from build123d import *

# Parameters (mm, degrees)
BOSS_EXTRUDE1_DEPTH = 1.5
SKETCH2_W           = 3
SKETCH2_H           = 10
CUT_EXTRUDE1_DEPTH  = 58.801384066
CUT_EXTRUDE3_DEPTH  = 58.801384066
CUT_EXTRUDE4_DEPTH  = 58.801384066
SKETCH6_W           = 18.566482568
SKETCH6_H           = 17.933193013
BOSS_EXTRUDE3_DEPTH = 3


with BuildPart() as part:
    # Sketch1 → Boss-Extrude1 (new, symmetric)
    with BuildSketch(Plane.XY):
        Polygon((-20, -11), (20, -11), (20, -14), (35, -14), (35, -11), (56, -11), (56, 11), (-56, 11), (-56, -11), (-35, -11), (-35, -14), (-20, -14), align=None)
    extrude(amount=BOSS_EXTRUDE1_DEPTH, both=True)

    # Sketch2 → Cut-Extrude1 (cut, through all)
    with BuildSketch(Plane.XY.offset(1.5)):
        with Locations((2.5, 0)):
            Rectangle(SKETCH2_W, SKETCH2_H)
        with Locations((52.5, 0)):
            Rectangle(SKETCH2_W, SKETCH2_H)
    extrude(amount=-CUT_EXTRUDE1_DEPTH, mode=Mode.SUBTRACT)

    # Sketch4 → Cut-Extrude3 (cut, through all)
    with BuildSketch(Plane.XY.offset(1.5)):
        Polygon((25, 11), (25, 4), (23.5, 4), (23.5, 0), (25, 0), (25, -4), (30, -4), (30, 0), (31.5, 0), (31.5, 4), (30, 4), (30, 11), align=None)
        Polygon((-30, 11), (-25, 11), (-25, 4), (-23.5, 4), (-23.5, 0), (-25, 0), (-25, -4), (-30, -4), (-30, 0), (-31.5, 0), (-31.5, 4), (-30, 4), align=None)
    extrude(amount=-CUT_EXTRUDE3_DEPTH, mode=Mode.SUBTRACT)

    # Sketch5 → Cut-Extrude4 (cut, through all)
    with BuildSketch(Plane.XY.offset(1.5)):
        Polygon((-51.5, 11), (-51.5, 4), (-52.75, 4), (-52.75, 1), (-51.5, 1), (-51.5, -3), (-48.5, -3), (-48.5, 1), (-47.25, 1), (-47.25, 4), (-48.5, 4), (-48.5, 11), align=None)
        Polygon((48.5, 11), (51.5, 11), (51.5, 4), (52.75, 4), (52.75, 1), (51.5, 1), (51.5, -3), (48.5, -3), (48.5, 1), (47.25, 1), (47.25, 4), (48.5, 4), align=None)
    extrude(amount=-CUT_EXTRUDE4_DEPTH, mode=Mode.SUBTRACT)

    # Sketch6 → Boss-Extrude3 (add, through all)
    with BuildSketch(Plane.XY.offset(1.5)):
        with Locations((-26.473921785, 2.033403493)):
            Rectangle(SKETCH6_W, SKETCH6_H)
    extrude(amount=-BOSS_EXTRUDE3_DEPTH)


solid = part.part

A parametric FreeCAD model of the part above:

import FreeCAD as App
import Part
import Sketcher
Q = App.Units.Quantity

doc = App.newDocument("Part")
body = doc.addObject("PartDesign::Body", "Body")

sketch1 = body.newObject("Sketcher::SketchObject", "Sketch")
sketch1.AttachmentSupport = (doc.getObject("XY_Plane"), [""])
sketch1.MapMode = "FlatFace"
sketch1.addGeometry(Part.LineSegment(App.Vector(-20, -11, 0), App.Vector(20, -11, 0)), False)
sketch1.addGeometry(Part.LineSegment(App.Vector(20, -11, 0), App.Vector(20, -14, 0)), False)
sketch1.addGeometry(Part.LineSegment(App.Vector(20, -14, 0), App.Vector(35, -14, 0)), False)
sketch1.addGeometry(Part.LineSegment(App.Vector(35, -14, 0), App.Vector(35, -11, 0)), False)
sketch1.addGeometry(Part.LineSegment(App.Vector(35, -11, 0), App.Vector(56, -11, 0)), False)
sketch1.addGeometry(Part.LineSegment(App.Vector(56, -11, 0), App.Vector(56, 11, 0)), False)
sketch1.addGeometry(Part.LineSegment(App.Vector(56, 11, 0), App.Vector(-56, 11, 0)), False)
sketch1.addGeometry(Part.LineSegment(App.Vector(-56, 11, 0), App.Vector(-56, -11, 0)), False)
sketch1.addGeometry(Part.LineSegment(App.Vector(-56, -11, 0), App.Vector(-35, -11, 0)), False)
sketch1.addGeometry(Part.LineSegment(App.Vector(-35, -11, 0), App.Vector(-35, -14, 0)), False)
sketch1.addGeometry(Part.LineSegment(App.Vector(-35, -14, 0), App.Vector(-20, -14, 0)), False)
sketch1.addGeometry(Part.LineSegment(App.Vector(-20, -14, 0), App.Vector(-20, -11, 0)), False)
sketch1.addConstraint(Sketcher.Constraint("Coincident", 0, 2, 1, 1))
sketch1.addConstraint(Sketcher.Constraint("Coincident", 1, 2, 2, 1))
sketch1.addConstraint(Sketcher.Constraint("Coincident", 2, 2, 3, 1))
sketch1.addConstraint(Sketcher.Constraint("Coincident", 3, 2, 4, 1))
sketch1.addConstraint(Sketcher.Constraint("Coincident", 4, 2, 5, 1))
sketch1.addConstraint(Sketcher.Constraint("Coincident", 5, 2, 6, 1))
sketch1.addConstraint(Sketcher.Constraint("Coincident", 6, 2, 7, 1))
sketch1.addConstraint(Sketcher.Constraint("Coincident", 7, 2, 8, 1))
sketch1.addConstraint(Sketcher.Constraint("Coincident", 8, 2, 9, 1))
sketch1.addConstraint(Sketcher.Constraint("Coincident", 9, 2, 10, 1))
sketch1.addConstraint(Sketcher.Constraint("Coincident", 10, 2, 11, 1))
sketch1.addConstraint(Sketcher.Constraint("Coincident", 11, 2, 0, 1))
sketch1.addConstraint(Sketcher.Constraint("Horizontal", 0))
sketch1.addConstraint(Sketcher.Constraint("Vertical", 1))
sketch1.addConstraint(Sketcher.Constraint("Horizontal", 2))
sketch1.addConstraint(Sketcher.Constraint("Vertical", 3))
sketch1.addConstraint(Sketcher.Constraint("Horizontal", 4))
sketch1.addConstraint(Sketcher.Constraint("Vertical", 5))
sketch1.addConstraint(Sketcher.Constraint("Horizontal", 6))
sketch1.addConstraint(Sketcher.Constraint("Vertical", 7))
sketch1.addConstraint(Sketcher.Constraint("Horizontal", 8))
sketch1.addConstraint(Sketcher.Constraint("Vertical", 9))
sketch1.addConstraint(Sketcher.Constraint("Horizontal", 10))
sketch1.addConstraint(Sketcher.Constraint("Vertical", 11))
sketch1.addConstraint(Sketcher.Constraint("Symmetric", 4, 2, 6, 2, -1, 1))
sketch1.addConstraint(Sketcher.Constraint("Symmetric", 3, 2, 8, 2, -2))
sketch1.addConstraint(Sketcher.Constraint("Symmetric", 1, 2, 10, 2, -2))
sketch1.addConstraint(Sketcher.Constraint("Horizontal", 0, 2, 3, 2))
sketch1.addConstraint(Sketcher.Constraint("DistanceX", 0, 1, 0, 2, Q("40 mm")))
sketch1.addConstraint(Sketcher.Constraint("DistanceX", 2, 1, 2, 2, Q("15 mm")))
sketch1.addConstraint(Sketcher.Constraint("DistanceX", 4, 1, 4, 2, Q("21 mm")))
sketch1.addConstraint(Sketcher.Constraint("DistanceY", 1, 2, 1, 1, Q("3 mm")))
sketch1.addConstraint(Sketcher.Constraint("DistanceY", 5, 1, 5, 2, Q("22 mm")))
pad1 = body.newObject("PartDesign::Pad", "Pad")
pad1.Profile = sketch1
pad1.Length = 3
pad1.Midplane = True

sketch2 = body.newObject("Sketcher::SketchObject", "Sketch001")
sketch2.AttachmentSupport = (doc.getObject("XY_Plane"), [""])
sketch2.MapMode = "FlatFace"
sketch2.AttachmentOffset = App.Placement(App.Vector(0, 0, 1.5), App.Rotation())
sketch2.addGeometry(Part.LineSegment(App.Vector(1, 5, 0), App.Vector(1, -5, 0)), False)
sketch2.addGeometry(Part.LineSegment(App.Vector(1, -5, 0), App.Vector(4, -5, 0)), False)
sketch2.addGeometry(Part.LineSegment(App.Vector(4, -5, 0), App.Vector(4, 5, 0)), False)
sketch2.addGeometry(Part.LineSegment(App.Vector(4, 5, 0), App.Vector(1, 5, 0)), False)
sketch2.addGeometry(Part.LineSegment(App.Vector(51, 5, 0), App.Vector(51, -5, 0)), False)
sketch2.addGeometry(Part.LineSegment(App.Vector(51, -5, 0), App.Vector(54, -5, 0)), False)
sketch2.addGeometry(Part.LineSegment(App.Vector(54, -5, 0), App.Vector(54, 5, 0)), False)
sketch2.addGeometry(Part.LineSegment(App.Vector(54, 5, 0), App.Vector(51, 5, 0)), False)
sketch2.addConstraint(Sketcher.Constraint("Coincident", 0, 2, 1, 1))
sketch2.addConstraint(Sketcher.Constraint("Coincident", 1, 2, 2, 1))
sketch2.addConstraint(Sketcher.Constraint("Coincident", 2, 2, 3, 1))
sketch2.addConstraint(Sketcher.Constraint("Coincident", 3, 2, 0, 1))
sketch2.addConstraint(Sketcher.Constraint("Coincident", 4, 2, 5, 1))
sketch2.addConstraint(Sketcher.Constraint("Coincident", 5, 2, 6, 1))
sketch2.addConstraint(Sketcher.Constraint("Coincident", 6, 2, 7, 1))
sketch2.addConstraint(Sketcher.Constraint("Coincident", 7, 2, 4, 1))
sketch2.addConstraint(Sketcher.Constraint("Vertical", 0))
sketch2.addConstraint(Sketcher.Constraint("Horizontal", 1))
sketch2.addConstraint(Sketcher.Constraint("Vertical", 2))
sketch2.addConstraint(Sketcher.Constraint("Horizontal", 3))
sketch2.addConstraint(Sketcher.Constraint("Vertical", 4))
sketch2.addConstraint(Sketcher.Constraint("Horizontal", 5))
sketch2.addConstraint(Sketcher.Constraint("Vertical", 6))
sketch2.addConstraint(Sketcher.Constraint("Horizontal", 7))
sketch2.addConstraint(Sketcher.Constraint("Horizontal", 1, 2, 4, 2))
sketch2.addConstraint(Sketcher.Constraint("Horizontal", 3, 2, 6, 2))
sketch2.addConstraint(Sketcher.Constraint("Equal", 3, 5))
sketch2.addConstraint(Sketcher.Constraint("DistanceX", 1, 1, 1, 2, Q("3 mm")))
sketch2.addConstraint(Sketcher.Constraint("DistanceY", 0, 2, 0, 1, Q("10 mm")))
sketch2.addConstraint(Sketcher.Constraint("DistanceX", -1, 1, 0, 2, Q("1 mm")))
sketch2.addConstraint(Sketcher.Constraint("DistanceY", 0, 2, -1, 1, Q("5 mm")))
sketch2.addConstraint(Sketcher.Constraint("DistanceX", -1, 1, 4, 2, Q("51 mm")))
pocket1 = body.newObject("PartDesign::Pocket", "Pocket")
pocket1.Profile = sketch2
pocket1.Type = "ThroughAll"

sketch3 = body.newObject("Sketcher::SketchObject", "Sketch002")
sketch3.AttachmentSupport = (doc.getObject("XY_Plane"), [""])
sketch3.MapMode = "FlatFace"
sketch3.AttachmentOffset = App.Placement(App.Vector(0, 0, 1.5), App.Rotation())
sketch3.addGeometry(Part.LineSegment(App.Vector(25, 11, 0), App.Vector(25, 4, 0)), False)
sketch3.addGeometry(Part.LineSegment(App.Vector(25, 4, 0), App.Vector(23.5, 4, 0)), False)
sketch3.addGeometry(Part.LineSegment(App.Vector(23.5, 4, 0), App.Vector(23.5, 0, 0)), False)
sketch3.addGeometry(Part.LineSegment(App.Vector(23.5, 0, 0), App.Vector(25, 0, 0)), False)
sketch3.addGeometry(Part.LineSegment(App.Vector(25, 0, 0), App.Vector(25, -4, 0)), False)
sketch3.addGeometry(Part.LineSegment(App.Vector(25, -4, 0), App.Vector(30, -4, 0)), False)
sketch3.addGeometry(Part.LineSegment(App.Vector(30, -4, 0), App.Vector(30, 0, 0)), False)
sketch3.addGeometry(Part.LineSegment(App.Vector(30, 0, 0), App.Vector(31.5, 0, 0)), False)
sketch3.addGeometry(Part.LineSegment(App.Vector(31.5, 0, 0), App.Vector(31.5, 4, 0)), False)
sketch3.addGeometry(Part.LineSegment(App.Vector(31.5, 4, 0), App.Vector(30, 4, 0)), False)
sketch3.addGeometry(Part.LineSegment(App.Vector(30, 4, 0), App.Vector(30, 11, 0)), False)
sketch3.addGeometry(Part.LineSegment(App.Vector(30, 11, 0), App.Vector(25, 11, 0)), False)
sketch3.addGeometry(Part.LineSegment(App.Vector(-25, 11, 0), App.Vector(-30, 11, 0)), False)
sketch3.addGeometry(Part.LineSegment(App.Vector(-30, 11, 0), App.Vector(-30, 4, 0)), False)
sketch3.addGeometry(Part.LineSegment(App.Vector(-30, 4, 0), App.Vector(-31.5, 4, 0)), False)
sketch3.addGeometry(Part.LineSegment(App.Vector(-31.5, 4, 0), App.Vector(-31.5, 0, 0)), False)
sketch3.addGeometry(Part.LineSegment(App.Vector(-31.5, 0, 0), App.Vector(-30, 0, 0)), False)
sketch3.addGeometry(Part.LineSegment(App.Vector(-30, 0, 0), App.Vector(-30, -4, 0)), False)
sketch3.addGeometry(Part.LineSegment(App.Vector(-30, -4, 0), App.Vector(-25, -4, 0)), False)
sketch3.addGeometry(Part.LineSegment(App.Vector(-25, -4, 0), App.Vector(-25, 0, 0)), False)
sketch3.addGeometry(Part.LineSegment(App.Vector(-25, 0, 0), App.Vector(-23.5, 0, 0)), False)
sketch3.addGeometry(Part.LineSegment(App.Vector(-23.5, 0, 0), App.Vector(-23.5, 4, 0)), False)
sketch3.addGeometry(Part.LineSegment(App.Vector(-23.5, 4, 0), App.Vector(-25, 4, 0)), False)
sketch3.addGeometry(Part.LineSegment(App.Vector(-25, 4, 0), App.Vector(-25, 11, 0)), False)
sketch3.addConstraint(Sketcher.Constraint("Coincident", 0, 2, 1, 1))
sketch3.addConstraint(Sketcher.Constraint("Coincident", 1, 2, 2, 1))
sketch3.addConstraint(Sketcher.Constraint("Coincident", 2, 2, 3, 1))
sketch3.addConstraint(Sketcher.Constraint("Coincident", 3, 2, 4, 1))
sketch3.addConstraint(Sketcher.Constraint("Coincident", 4, 2, 5, 1))
sketch3.addConstraint(Sketcher.Constraint("Coincident", 5, 2, 6, 1))
sketch3.addConstraint(Sketcher.Constraint("Coincident", 6, 2, 7, 1))
sketch3.addConstraint(Sketcher.Constraint("Coincident", 7, 2, 8, 1))
sketch3.addConstraint(Sketcher.Constraint("Coincident", 8, 2, 9, 1))
sketch3.addConstraint(Sketcher.Constraint("Coincident", 9, 2, 10, 1))
sketch3.addConstraint(Sketcher.Constraint("Coincident", 10, 2, 11, 1))
sketch3.addConstraint(Sketcher.Constraint("Coincident", 11, 2, 0, 1))
sketch3.addConstraint(Sketcher.Constraint("Coincident", 12, 2, 13, 1))
sketch3.addConstraint(Sketcher.Constraint("Coincident", 13, 2, 14, 1))
sketch3.addConstraint(Sketcher.Constraint("Coincident", 14, 2, 15, 1))
sketch3.addConstraint(Sketcher.Constraint("Coincident", 15, 2, 16, 1))
sketch3.addConstraint(Sketcher.Constraint("Coincident", 16, 2, 17, 1))
sketch3.addConstraint(Sketcher.Constraint("Coincident", 17, 2, 18, 1))
sketch3.addConstraint(Sketcher.Constraint("Coincident", 18, 2, 19, 1))
sketch3.addConstraint(Sketcher.Constraint("Coincident", 19, 2, 20, 1))
sketch3.addConstraint(Sketcher.Constraint("Coincident", 20, 2, 21, 1))
sketch3.addConstraint(Sketcher.Constraint("Coincident", 21, 2, 22, 1))
sketch3.addConstraint(Sketcher.Constraint("Coincident", 22, 2, 23, 1))
sketch3.addConstraint(Sketcher.Constraint("Coincident", 23, 2, 12, 1))
sketch3.addConstraint(Sketcher.Constraint("Vertical", 0))
sketch3.addConstraint(Sketcher.Constraint("Horizontal", 1))
sketch3.addConstraint(Sketcher.Constraint("Vertical", 2))
sketch3.addConstraint(Sketcher.Constraint("Horizontal", 3))
sketch3.addConstraint(Sketcher.Constraint("Vertical", 4))
sketch3.addConstraint(Sketcher.Constraint("Horizontal", 5))
sketch3.addConstraint(Sketcher.Constraint("Vertical", 6))
sketch3.addConstraint(Sketcher.Constraint("Horizontal", 7))
sketch3.addConstraint(Sketcher.Constraint("Vertical", 8))
sketch3.addConstraint(Sketcher.Constraint("Horizontal", 9))
sketch3.addConstraint(Sketcher.Constraint("Vertical", 10))
sketch3.addConstraint(Sketcher.Constraint("Horizontal", 11))
sketch3.addConstraint(Sketcher.Constraint("Horizontal", 12))
sketch3.addConstraint(Sketcher.Constraint("Vertical", 13))
sketch3.addConstraint(Sketcher.Constraint("Horizontal", 14))
sketch3.addConstraint(Sketcher.Constraint("Vertical", 15))
sketch3.addConstraint(Sketcher.Constraint("Horizontal", 16))
sketch3.addConstraint(Sketcher.Constraint("Vertical", 17))
sketch3.addConstraint(Sketcher.Constraint("Horizontal", 18))
sketch3.addConstraint(Sketcher.Constraint("Vertical", 19))
sketch3.addConstraint(Sketcher.Constraint("Horizontal", 20))
sketch3.addConstraint(Sketcher.Constraint("Vertical", 21))
sketch3.addConstraint(Sketcher.Constraint("Horizontal", 22))
sketch3.addConstraint(Sketcher.Constraint("Vertical", 23))
sketch3.addConstraint(Sketcher.Constraint("Symmetric", 5, 2, 13, 2, -1, 1))
sketch3.addConstraint(Sketcher.Constraint("Symmetric", 7, 2, 15, 2, -1, 1))
sketch3.addConstraint(Sketcher.Constraint("Symmetric", 9, 2, 17, 2, -1, 1))
sketch3.addConstraint(Sketcher.Constraint("Symmetric", 0, 2, 18, 2, -1, 1))
sketch3.addConstraint(Sketcher.Constraint("Symmetric", 3, 2, 19, 2, -1, 1))
sketch3.addConstraint(Sketcher.Constraint("Symmetric", 4, 2, 22, 2, -1, 1))
sketch3.addConstraint(Sketcher.Constraint("Symmetric", 10, 2, 12, 2, -2))
sketch3.addConstraint(Sketcher.Constraint("Symmetric", 2, 2, 20, 2, -2))
sketch3.addConstraint(Sketcher.Constraint("PointOnObject", 6, 2, -1))
sketch3.addConstraint(Sketcher.Constraint("Horizontal", 9, 2, 13, 2))
sketch3.addConstraint(Sketcher.Constraint("Equal", 3, 7))
sketch3.addConstraint(Sketcher.Constraint("DistanceX", 5, 1, 5, 2, Q("5 mm")))
sketch3.addConstraint(Sketcher.Constraint("DistanceY", 0, 2, 0, 1, Q("7 mm")))
sketch3.addConstraint(Sketcher.Constraint("DistanceY", 2, 2, 2, 1, Q("4 mm")))
sketch3.addConstraint(Sketcher.Constraint("DistanceX", 1, 2, 1, 1, Q("1.5 mm")))
sketch3.addConstraint(Sketcher.Constraint("DistanceX", -1, 1, 0, 2, Q("25 mm")))
pocket2 = body.newObject("PartDesign::Pocket", "Pocket001")
pocket2.Profile = sketch3
pocket2.Type = "ThroughAll"

sketch4 = body.newObject("Sketcher::SketchObject", "Sketch003")
sketch4.AttachmentSupport = (doc.getObject("XY_Plane"), [""])
sketch4.MapMode = "FlatFace"
sketch4.AttachmentOffset = App.Placement(App.Vector(0, 0, 1.5), App.Rotation())
sketch4.addGeometry(Part.LineSegment(App.Vector(-51.5, 11, 0), App.Vector(-51.5, 4, 0)), False)
sketch4.addGeometry(Part.LineSegment(App.Vector(-51.5, 4, 0), App.Vector(-52.8, 4, 0)), False)
sketch4.addGeometry(Part.LineSegment(App.Vector(-52.8, 4, 0), App.Vector(-52.8, 1, 0)), False)
sketch4.addGeometry(Part.LineSegment(App.Vector(-52.8, 1, 0), App.Vector(-51.5, 1, 0)), False)
sketch4.addGeometry(Part.LineSegment(App.Vector(-51.5, 1, 0), App.Vector(-51.5, -3, 0)), False)
sketch4.addGeometry(Part.LineSegment(App.Vector(-51.5, -3, 0), App.Vector(-48.5, -3, 0)), False)
sketch4.addGeometry(Part.LineSegment(App.Vector(-48.5, -3, 0), App.Vector(-48.5, 1, 0)), False)
sketch4.addGeometry(Part.LineSegment(App.Vector(-48.5, 1, 0), App.Vector(-47.2, 1, 0)), False)
sketch4.addGeometry(Part.LineSegment(App.Vector(-47.2, 1, 0), App.Vector(-47.2, 4, 0)), False)
sketch4.addGeometry(Part.LineSegment(App.Vector(-47.2, 4, 0), App.Vector(-48.5, 4, 0)), False)
sketch4.addGeometry(Part.LineSegment(App.Vector(-48.5, 4, 0), App.Vector(-48.5, 11, 0)), False)
sketch4.addGeometry(Part.LineSegment(App.Vector(-48.5, 11, 0), App.Vector(-51.5, 11, 0)), False)
sketch4.addGeometry(Part.LineSegment(App.Vector(51.5, 11, 0), App.Vector(48.5, 11, 0)), False)
sketch4.addGeometry(Part.LineSegment(App.Vector(48.5, 11, 0), App.Vector(48.5, 4, 0)), False)
sketch4.addGeometry(Part.LineSegment(App.Vector(48.5, 4, 0), App.Vector(47.2, 4, 0)), False)
sketch4.addGeometry(Part.LineSegment(App.Vector(47.2, 4, 0), App.Vector(47.2, 1, 0)), False)
sketch4.addGeometry(Part.LineSegment(App.Vector(47.2, 1, 0), App.Vector(48.5, 1, 0)), False)
sketch4.addGeometry(Part.LineSegment(App.Vector(48.5, 1, 0), App.Vector(48.5, -3, 0)), False)
sketch4.addGeometry(Part.LineSegment(App.Vector(48.5, -3, 0), App.Vector(51.5, -3, 0)), False)
sketch4.addGeometry(Part.LineSegment(App.Vector(51.5, -3, 0), App.Vector(51.5, 1, 0)), False)
sketch4.addGeometry(Part.LineSegment(App.Vector(51.5, 1, 0), App.Vector(52.8, 1, 0)), False)
sketch4.addGeometry(Part.LineSegment(App.Vector(52.8, 1, 0), App.Vector(52.8, 4, 0)), False)
sketch4.addGeometry(Part.LineSegment(App.Vector(52.8, 4, 0), App.Vector(51.5, 4, 0)), False)
sketch4.addGeometry(Part.LineSegment(App.Vector(51.5, 4, 0), App.Vector(51.5, 11, 0)), False)
sketch4.addConstraint(Sketcher.Constraint("Coincident", 0, 2, 1, 1))
sketch4.addConstraint(Sketcher.Constraint("Coincident", 1, 2, 2, 1))
sketch4.addConstraint(Sketcher.Constraint("Coincident", 2, 2, 3, 1))
sketch4.addConstraint(Sketcher.Constraint("Coincident", 3, 2, 4, 1))
sketch4.addConstraint(Sketcher.Constraint("Coincident", 4, 2, 5, 1))
sketch4.addConstraint(Sketcher.Constraint("Coincident", 5, 2, 6, 1))
sketch4.addConstraint(Sketcher.Constraint("Coincident", 6, 2, 7, 1))
sketch4.addConstraint(Sketcher.Constraint("Coincident", 7, 2, 8, 1))
sketch4.addConstraint(Sketcher.Constraint("Coincident", 8, 2, 9, 1))
sketch4.addConstraint(Sketcher.Constraint("Coincident", 9, 2, 10, 1))
sketch4.addConstraint(Sketcher.Constraint("Coincident", 10, 2, 11, 1))
sketch4.addConstraint(Sketcher.Constraint("Coincident", 11, 2, 0, 1))
sketch4.addConstraint(Sketcher.Constraint("Coincident", 12, 2, 13, 1))
sketch4.addConstraint(Sketcher.Constraint("Coincident", 13, 2, 14, 1))
sketch4.addConstraint(Sketcher.Constraint("Coincident", 14, 2, 15, 1))
sketch4.addConstraint(Sketcher.Constraint("Coincident", 15, 2, 16, 1))
sketch4.addConstraint(Sketcher.Constraint("Coincident", 16, 2, 17, 1))
sketch4.addConstraint(Sketcher.Constraint("Coincident", 17, 2, 18, 1))
sketch4.addConstraint(Sketcher.Constraint("Coincident", 18, 2, 19, 1))
sketch4.addConstraint(Sketcher.Constraint("Coincident", 19, 2, 20, 1))
sketch4.addConstraint(Sketcher.Constraint("Coincident", 20, 2, 21, 1))
sketch4.addConstraint(Sketcher.Constraint("Coincident", 21, 2, 22, 1))
sketch4.addConstraint(Sketcher.Constraint("Coincident", 22, 2, 23, 1))
sketch4.addConstraint(Sketcher.Constraint("Coincident", 23, 2, 12, 1))
sketch4.addConstraint(Sketcher.Constraint("Vertical", 0))
sketch4.addConstraint(Sketcher.Constraint("Horizontal", 1))
sketch4.addConstraint(Sketcher.Constraint("Vertical", 2))
sketch4.addConstraint(Sketcher.Constraint("Horizontal", 3))
sketch4.addConstraint(Sketcher.Constraint("Vertical", 4))
sketch4.addConstraint(Sketcher.Constraint("Horizontal", 5))
sketch4.addConstraint(Sketcher.Constraint("Vertical", 6))
sketch4.addConstraint(Sketcher.Constraint("Horizontal", 7))
sketch4.addConstraint(Sketcher.Constraint("Vertical", 8))
sketch4.addConstraint(Sketcher.Constraint("Horizontal", 9))
sketch4.addConstraint(Sketcher.Constraint("Vertical", 10))
sketch4.addConstraint(Sketcher.Constraint("Horizontal", 11))
sketch4.addConstraint(Sketcher.Constraint("Horizontal", 12))
sketch4.addConstraint(Sketcher.Constraint("Vertical", 13))
sketch4.addConstraint(Sketcher.Constraint("Horizontal", 14))
sketch4.addConstraint(Sketcher.Constraint("Vertical", 15))
sketch4.addConstraint(Sketcher.Constraint("Horizontal", 16))
sketch4.addConstraint(Sketcher.Constraint("Vertical", 17))
sketch4.addConstraint(Sketcher.Constraint("Horizontal", 18))
sketch4.addConstraint(Sketcher.Constraint("Vertical", 19))
sketch4.addConstraint(Sketcher.Constraint("Horizontal", 20))
sketch4.addConstraint(Sketcher.Constraint("Vertical", 21))
sketch4.addConstraint(Sketcher.Constraint("Horizontal", 22))
sketch4.addConstraint(Sketcher.Constraint("Vertical", 23))
sketch4.addConstraint(Sketcher.Constraint("Symmetric", 10, 2, 12, 2, -2))
sketch4.addConstraint(Sketcher.Constraint("Symmetric", 8, 2, 14, 2, -2))
sketch4.addConstraint(Sketcher.Constraint("Symmetric", 6, 2, 16, 2, -2))
sketch4.addConstraint(Sketcher.Constraint("Symmetric", 4, 2, 18, 2, -2))
sketch4.addConstraint(Sketcher.Constraint("Symmetric", 2, 2, 20, 2, -2))
sketch4.addConstraint(Sketcher.Constraint("Symmetric", 0, 2, 22, 2, -2))
sketch4.addConstraint(Sketcher.Constraint("Horizontal", 3, 2, 6, 2))
sketch4.addConstraint(Sketcher.Constraint("Horizontal", 1, 2, 8, 2))
sketch4.addConstraint(Sketcher.Constraint("Vertical", 0, 2, 3, 2))
sketch4.addConstraint(Sketcher.Constraint("Vertical", 6, 2, 9, 2))
sketch4.addConstraint(Sketcher.Constraint("Equal", 3, 7))
sketch4.addConstraint(Sketcher.Constraint("Equal", 18, 2))
sketch4.addConstraint(Sketcher.Constraint("DistanceX", 5, 1, 5, 2, Q("3 mm")))
sketch4.addConstraint(Sketcher.Constraint("DistanceY", 0, 2, 0, 1, Q("7 mm")))
sketch4.addConstraint(Sketcher.Constraint("DistanceY", 4, 2, 4, 1, Q("4 mm")))
sketch4.addConstraint(Sketcher.Constraint("DistanceY", -1, 1, 0, 2, Q("4 mm")))
sketch4.addConstraint(Sketcher.Constraint("DistanceX", 10, 2, 12, 2, Q("97 mm")))
sketch4.addConstraint(Sketcher.Constraint("DistanceX", 1, 2, 1, 1, Q("1.25 mm")))
pocket3 = body.newObject("PartDesign::Pocket", "Pocket002")
pocket3.Profile = sketch4
pocket3.Type = "ThroughAll"

sketch5 = body.newObject("Sketcher::SketchObject", "Sketch004")
sketch5.AttachmentSupport = (doc.getObject("XY_Plane"), [""])
sketch5.MapMode = "FlatFace"
sketch5.AttachmentOffset = App.Placement(App.Vector(0, 0, 1.5), App.Rotation())
sketch5.addGeometry(Part.LineSegment(App.Vector(-36, 11, 0), App.Vector(-36, -7, 0)), False)
sketch5.addGeometry(Part.LineSegment(App.Vector(-36, -7, 0), App.Vector(-17, -7, 0)), False)
sketch5.addGeometry(Part.LineSegment(App.Vector(-17, -7, 0), App.Vector(-17, 11, 0)), False)
sketch5.addGeometry(Part.LineSegment(App.Vector(-17, 11, 0), App.Vector(-36, 11, 0)), False)
sketch5.addConstraint(Sketcher.Constraint("Coincident", 0, 2, 1, 1))
sketch5.addConstraint(Sketcher.Constraint("Coincident", 1, 2, 2, 1))
sketch5.addConstraint(Sketcher.Constraint("Coincident", 2, 2, 3, 1))
sketch5.addConstraint(Sketcher.Constraint("Coincident", 3, 2, 0, 1))
sketch5.addConstraint(Sketcher.Constraint("Vertical", 0))
sketch5.addConstraint(Sketcher.Constraint("Horizontal", 1))
sketch5.addConstraint(Sketcher.Constraint("Vertical", 2))
sketch5.addConstraint(Sketcher.Constraint("Horizontal", 3))
sketch5.addConstraint(Sketcher.Constraint("DistanceY", -1, 1, 2, 2, Q("11 mm")))
sketch5.addConstraint(Sketcher.Constraint("DistanceX", 1, 1, 1, 2, Q("18.566483 mm")))
sketch5.addConstraint(Sketcher.Constraint("DistanceY", 0, 2, 0, 1, Q("17.933193 mm")))
sketch5.addConstraint(Sketcher.Constraint("DistanceX", 1, 2, -1, 1, Q("17.190681 mm")))
pad2 = body.newObject("PartDesign::Pad", "Pad001")
pad2.Profile = sketch5
pad2.Length = 3
pad2.Reversed = True

doc.recompute()
